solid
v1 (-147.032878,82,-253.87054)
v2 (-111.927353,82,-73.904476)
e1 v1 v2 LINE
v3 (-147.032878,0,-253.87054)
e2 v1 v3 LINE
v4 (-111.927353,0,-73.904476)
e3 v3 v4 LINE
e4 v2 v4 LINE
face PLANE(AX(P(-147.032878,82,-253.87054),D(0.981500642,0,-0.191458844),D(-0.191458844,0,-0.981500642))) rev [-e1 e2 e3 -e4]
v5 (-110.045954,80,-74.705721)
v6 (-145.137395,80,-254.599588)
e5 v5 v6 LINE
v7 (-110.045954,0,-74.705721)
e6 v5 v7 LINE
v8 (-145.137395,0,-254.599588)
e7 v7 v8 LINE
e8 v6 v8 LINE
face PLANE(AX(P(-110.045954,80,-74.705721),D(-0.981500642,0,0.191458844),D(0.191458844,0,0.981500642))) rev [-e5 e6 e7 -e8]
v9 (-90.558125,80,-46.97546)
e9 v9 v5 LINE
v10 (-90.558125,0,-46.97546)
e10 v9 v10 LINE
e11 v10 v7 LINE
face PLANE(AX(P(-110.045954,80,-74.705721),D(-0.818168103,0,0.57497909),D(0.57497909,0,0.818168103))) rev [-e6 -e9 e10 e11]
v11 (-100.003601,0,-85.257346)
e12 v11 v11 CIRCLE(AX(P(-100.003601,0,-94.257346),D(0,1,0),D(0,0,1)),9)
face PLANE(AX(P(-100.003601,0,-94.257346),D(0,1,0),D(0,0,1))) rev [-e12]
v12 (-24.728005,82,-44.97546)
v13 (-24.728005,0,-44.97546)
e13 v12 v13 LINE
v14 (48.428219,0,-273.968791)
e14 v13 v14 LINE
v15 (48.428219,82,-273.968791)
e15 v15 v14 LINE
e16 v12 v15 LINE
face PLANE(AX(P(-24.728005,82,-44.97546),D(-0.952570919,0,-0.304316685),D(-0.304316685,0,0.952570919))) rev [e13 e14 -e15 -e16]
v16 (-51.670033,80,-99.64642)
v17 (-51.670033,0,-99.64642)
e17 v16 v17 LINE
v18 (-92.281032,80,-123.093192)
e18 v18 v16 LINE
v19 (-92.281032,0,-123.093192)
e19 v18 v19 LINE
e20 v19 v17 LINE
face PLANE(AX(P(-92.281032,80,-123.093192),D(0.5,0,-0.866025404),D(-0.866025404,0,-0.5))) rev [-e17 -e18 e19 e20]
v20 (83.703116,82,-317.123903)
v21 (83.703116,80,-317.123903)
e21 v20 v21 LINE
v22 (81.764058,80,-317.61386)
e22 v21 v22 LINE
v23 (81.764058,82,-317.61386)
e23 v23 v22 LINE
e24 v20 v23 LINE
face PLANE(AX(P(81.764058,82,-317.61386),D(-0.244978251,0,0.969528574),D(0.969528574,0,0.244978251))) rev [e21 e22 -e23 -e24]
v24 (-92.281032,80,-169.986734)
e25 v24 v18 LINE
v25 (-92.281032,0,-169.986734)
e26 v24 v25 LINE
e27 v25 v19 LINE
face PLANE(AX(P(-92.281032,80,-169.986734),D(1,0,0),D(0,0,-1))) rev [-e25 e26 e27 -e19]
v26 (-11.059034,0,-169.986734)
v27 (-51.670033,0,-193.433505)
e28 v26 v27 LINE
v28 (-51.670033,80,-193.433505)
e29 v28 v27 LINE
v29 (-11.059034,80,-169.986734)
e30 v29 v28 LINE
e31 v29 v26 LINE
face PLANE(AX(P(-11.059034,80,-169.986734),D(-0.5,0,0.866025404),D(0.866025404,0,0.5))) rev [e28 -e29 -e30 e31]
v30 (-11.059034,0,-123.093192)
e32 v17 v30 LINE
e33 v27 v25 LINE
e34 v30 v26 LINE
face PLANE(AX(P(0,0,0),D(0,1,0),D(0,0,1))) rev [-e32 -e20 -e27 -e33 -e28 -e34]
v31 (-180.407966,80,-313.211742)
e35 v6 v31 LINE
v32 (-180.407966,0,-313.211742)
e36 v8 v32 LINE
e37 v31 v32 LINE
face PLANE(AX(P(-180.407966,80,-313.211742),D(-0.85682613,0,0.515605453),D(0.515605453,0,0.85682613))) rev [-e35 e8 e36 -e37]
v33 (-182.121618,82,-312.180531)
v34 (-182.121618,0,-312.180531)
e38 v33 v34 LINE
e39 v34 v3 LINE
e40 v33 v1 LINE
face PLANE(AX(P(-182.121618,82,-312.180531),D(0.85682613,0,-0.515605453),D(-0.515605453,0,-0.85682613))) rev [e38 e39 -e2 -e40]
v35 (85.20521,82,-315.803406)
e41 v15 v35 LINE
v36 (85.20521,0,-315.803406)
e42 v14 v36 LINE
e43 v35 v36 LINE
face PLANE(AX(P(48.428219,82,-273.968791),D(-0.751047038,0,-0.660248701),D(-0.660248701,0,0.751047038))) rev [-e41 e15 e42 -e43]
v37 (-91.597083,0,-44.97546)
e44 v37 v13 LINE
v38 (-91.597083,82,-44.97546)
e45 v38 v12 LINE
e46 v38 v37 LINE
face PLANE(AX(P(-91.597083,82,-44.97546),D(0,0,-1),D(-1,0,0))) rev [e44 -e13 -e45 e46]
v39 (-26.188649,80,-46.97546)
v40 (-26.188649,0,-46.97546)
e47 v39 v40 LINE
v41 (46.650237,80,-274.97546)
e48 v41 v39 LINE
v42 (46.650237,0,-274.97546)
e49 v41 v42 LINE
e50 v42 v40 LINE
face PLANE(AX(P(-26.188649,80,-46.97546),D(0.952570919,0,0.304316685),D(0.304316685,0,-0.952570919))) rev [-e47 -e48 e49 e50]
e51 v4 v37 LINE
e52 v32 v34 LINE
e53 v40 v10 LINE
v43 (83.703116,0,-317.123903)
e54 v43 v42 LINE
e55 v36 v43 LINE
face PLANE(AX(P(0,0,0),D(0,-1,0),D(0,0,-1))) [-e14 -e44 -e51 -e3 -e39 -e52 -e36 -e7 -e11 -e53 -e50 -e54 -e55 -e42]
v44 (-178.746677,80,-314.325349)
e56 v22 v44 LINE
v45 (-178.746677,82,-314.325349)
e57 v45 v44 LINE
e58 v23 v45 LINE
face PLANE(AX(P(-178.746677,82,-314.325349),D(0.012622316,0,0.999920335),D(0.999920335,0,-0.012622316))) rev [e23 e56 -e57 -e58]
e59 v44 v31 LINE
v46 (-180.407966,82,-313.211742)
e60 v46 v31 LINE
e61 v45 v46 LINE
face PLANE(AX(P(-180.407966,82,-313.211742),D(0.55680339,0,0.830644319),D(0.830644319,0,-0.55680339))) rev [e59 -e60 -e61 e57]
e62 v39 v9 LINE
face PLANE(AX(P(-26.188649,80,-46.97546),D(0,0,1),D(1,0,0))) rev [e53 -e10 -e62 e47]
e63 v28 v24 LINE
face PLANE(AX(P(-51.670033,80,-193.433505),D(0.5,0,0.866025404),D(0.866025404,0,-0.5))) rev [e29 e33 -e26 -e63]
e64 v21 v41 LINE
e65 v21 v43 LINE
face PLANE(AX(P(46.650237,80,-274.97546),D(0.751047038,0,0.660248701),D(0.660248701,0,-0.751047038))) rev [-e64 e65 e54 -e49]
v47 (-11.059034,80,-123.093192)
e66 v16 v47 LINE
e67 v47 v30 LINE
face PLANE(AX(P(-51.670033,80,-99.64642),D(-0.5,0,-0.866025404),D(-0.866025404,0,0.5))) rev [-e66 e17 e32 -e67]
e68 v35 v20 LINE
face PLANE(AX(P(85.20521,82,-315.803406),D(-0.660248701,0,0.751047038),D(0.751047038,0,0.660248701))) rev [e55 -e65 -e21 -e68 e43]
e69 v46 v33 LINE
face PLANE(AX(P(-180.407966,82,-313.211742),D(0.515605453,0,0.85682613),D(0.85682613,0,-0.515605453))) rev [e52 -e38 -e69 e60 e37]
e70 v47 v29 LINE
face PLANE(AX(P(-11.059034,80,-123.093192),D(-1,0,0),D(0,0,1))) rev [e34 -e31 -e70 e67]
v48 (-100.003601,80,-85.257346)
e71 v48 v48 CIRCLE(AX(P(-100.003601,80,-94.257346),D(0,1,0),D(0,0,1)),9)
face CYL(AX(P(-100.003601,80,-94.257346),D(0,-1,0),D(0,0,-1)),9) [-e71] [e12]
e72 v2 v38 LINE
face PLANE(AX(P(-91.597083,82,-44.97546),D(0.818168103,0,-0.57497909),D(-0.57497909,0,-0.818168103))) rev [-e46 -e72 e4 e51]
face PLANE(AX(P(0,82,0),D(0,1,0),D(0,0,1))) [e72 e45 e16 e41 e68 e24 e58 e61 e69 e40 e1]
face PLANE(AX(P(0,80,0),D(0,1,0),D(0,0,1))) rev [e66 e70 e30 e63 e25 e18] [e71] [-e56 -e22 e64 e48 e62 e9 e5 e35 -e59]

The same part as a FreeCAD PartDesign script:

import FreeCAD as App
import Part
import Sketcher
Q = App.Units.Quantity

doc = App.newDocument("Part")
body = doc.addObject("PartDesign::Body", "Body")

sketch1 = body.newObject("Sketcher::SketchObject", "Sketch")
sketch1.AttachmentSupport = (doc.getObject("XZ_Plane"), [""])
sketch1.MapMode = "FlatFace"
sketch1.addGeometry(Part.Circle(App.Vector(-100, -94, 0), App.Vector(0, 0, 1), 9), False)
sketch1.addConstraint([
    Sketcher.Constraint("Diameter", 0, 18.0),
    Sketcher.Constraint("DistanceX", 0, 3, -1, 1, 100.003601),
    Sketcher.Constraint("DistanceY", 0, 3, -1, 1, 94.257346),
])
pad1 = body.newObject("PartDesign::Pad", "Pad")
pad1.Profile = sketch1
pad1.Length = 80
pad1.Reversed = True
body2 = doc.addObject("PartDesign::Body", "Body001")

sketch2 = body2.newObject("Sketcher::SketchObject", "Sketch001")
sketch2.AttachmentSupport = (doc.getObject("XZ_Plane001"), [""])
sketch2.MapMode = "FlatFace"
sketch2.addGeometry([
    Part.LineSegment(App.Vector(-145.137395, -254.599588, 0), App.Vector(-180.407966, -313.211742, 0)),
    Part.LineSegment(App.Vector(-180.407966, -313.211742, 0), App.Vector(-182.121618, -312.180531, 0)),
    Part.LineSegment(App.Vector(-182.121618, -312.180531, 0), App.Vector(-147.032878, -253.87054, 0)),
    Part.LineSegment(App.Vector(-147.032878, -253.87054, 0), App.Vector(-111.927353, -73.904476, 0)),
    Part.LineSegment(App.Vector(-111.927353, -73.904476, 0), App.Vector(-91.597083, -44.97546, 0)),
    Part.LineSegment(App.Vector(-91.597083, -44.97546, 0), App.Vector(-24.728005, -44.97546, 0)),
    Part.LineSegment(App.Vector(-24.728005, -44.97546, 0), App.Vector(48.428219, -273.968791, 0)),
    Part.LineSegment(App.Vector(48.428219, -273.968791, 0), App.Vector(85.20521, -315.803406, 0)),
    Part.LineSegment(App.Vector(85.20521, -315.803406, 0), App.Vector(83.703116, -317.123903, 0)),
    Part.LineSegment(App.Vector(83.703116, -317.123903, 0), App.Vector(46.650237, -274.97546, 0)),
    Part.LineSegment(App.Vector(46.650237, -274.97546, 0), App.Vector(-26.188649, -46.97546, 0)),
    Part.LineSegment(App.Vector(-26.188649, -46.97546, 0), App.Vector(-90.558125, -46.97546, 0)),
    Part.LineSegment(App.Vector(-90.558125, -46.97546, 0), App.Vector(-110.045954, -74.705721, 0)),
    Part.LineSegment(App.Vector(-110.045954, -74.705721, 0), App.Vector(-145.137395, -254.599588, 0)),
], False)
sketch2.addConstraint([
    Sketcher.Constraint("Coincident", 0, 2, 1, 1),
    Sketcher.Constraint("Coincident", 1, 2, 2, 1),
    Sketcher.Constraint("Coincident", 2, 2, 3, 1),
    Sketcher.Constraint("Coincident", 3, 2, 4, 1),
    Sketcher.Constraint("Coincident", 4, 2, 5, 1),
    Sketcher.Constraint("Coincident", 5, 2, 6, 1),
    Sketcher.Constraint("Coincident", 6, 2, 7, 1),
    Sketcher.Constraint("Coincident", 7, 2, 8, 1),
    Sketcher.Constraint("Coincident", 8, 2, 9, 1),
    Sketcher.Constraint("Coincident", 9, 2, 10, 1),
    Sketcher.Constraint("Coincident", 10, 2, 11, 1),
    Sketcher.Constraint("Coincident", 11, 2, 12, 1),
    Sketcher.Constraint("Coincident", 12, 2, 13, 1),
    Sketcher.Constraint("Coincident", 13, 2, 0, 1),
    Sketcher.Constraint("Horizontal", 5),
    Sketcher.Constraint("Horizontal", 11),
    Sketcher.Constraint("Perpendicular", 0, 1),
    Sketcher.Constraint("Perpendicular", 1, 2),
    Sketcher.Constraint("Perpendicular", 7, 8),
    Sketcher.Constraint("Perpendicular", 8, 9),
    Sketcher.Constraint("Parallel", 6, 10),
    Sketcher.Constraint("Parallel", 4, 12),
    Sketcher.Constraint("Parallel", 3, 13),
    Sketcher.Constraint("Equal", 1, 8),
    Sketcher.Constraint("Distance", 1, 2.0),
    Sketcher.Constraint("DistanceY", 10, 2, 5, 2, 2.0),
    Sketcher.Constraint("DistanceY", 9, 2, 10, 2, 228.0),
    Sketcher.Constraint("DistanceX", 3, 2, 12, 2, 1.881399),
    Sketcher.Constraint("Distance", 2, 68.05347),
    Sketcher.Constraint("Distance", 3, 183.358071),
    Sketcher.Constraint("Distance", 4, 35.358279),
    Sketcher.Constraint("Distance", 9, 56.119579),
    Sketcher.Constraint("Distance", 12, 33.893109),
    Sketcher.Constraint("DistanceX", 5, 1, 5, 2, 66.869077),
    Sketcher.Constraint("DistanceX", 11, 2, 11, 1, 64.369476),
    Sketcher.Constraint("DistanceY", 1, 2, -1, 1, 312.180531),
    Sketcher.Constraint("DistanceY", 2, 2, -1, 1, 253.87054),
    Sketcher.Constraint("DistanceY", 4, 2, -1, 1, 44.97546),
    Sketcher.Constraint("DistanceX", -1, 1, 6, 2, 48.428219),
    Sketcher.Constraint("DistanceY", 6, 2, -1, 1, 273.968791),
    Sketcher.Constraint("DistanceX", -1, 1, 7, 2, 85.20521),
    Sketcher.Constraint("DistanceX", 10, 2, -1, 1, 26.188649),
])
pad2 = body2.newObject("PartDesign::Pad", "Pad001")
pad2.Profile = sketch2
pad2.Length = 80
pad2.Reversed = True
body3 = doc.addObject("PartDesign::Body", "Body002")

sketch3 = body3.newObject("Sketcher::SketchObject", "Sketch002")
sketch3.AttachmentSupport = (doc.getObject("XZ_Plane002"), [""])
sketch3.MapMode = "FlatFace"
sketch3.addGeometry([
    Part.LineSegment(App.Vector(-52, -193, 0), App.Vector(-92, -170, 0)),
    Part.LineSegment(App.Vector(-92, -170, 0), App.Vector(-92, -123, 0)),
    Part.LineSegment(App.Vector(-92, -123, 0), App.Vector(-52, -100, 0)),
    Part.LineSegment(App.Vector(-52, -100, 0), App.Vector(-11, -123, 0)),
    Part.LineSegment(App.Vector(-11, -123, 0), App.Vector(-11, -170, 0)),
    Part.LineSegment(App.Vector(-11, -170, 0), App.Vector(-52, -193, 0)),
], False)
sketch3.addConstraint([
    Sketcher.Constraint("Coincident", 0, 2, 1, 1),
    Sketcher.Constraint("Coincident", 1, 2, 2, 1),
    Sketcher.Constraint("Coincident", 2, 2, 3, 1),
    Sketcher.Constraint("Coincident", 3, 2, 4, 1),
    Sketcher.Constraint("Coincident", 4, 2, 5, 1),
    Sketcher.Constraint("Coincident", 5, 2, 0, 1),
    Sketcher.Constraint("Vertical", 1),
    Sketcher.Constraint("Vertical", 4),
    Sketcher.Constraint("Parallel", 0, 3),
    Sketcher.Constraint("Parallel", 2, 5),
    Sketcher.Constraint("Horizontal", 1, 2, 3, 2),
    Sketcher.Constraint("Horizontal", 0, 2, 4, 2),
    Sketcher.Constraint("Vertical", 2, 2, 5, 2),
    Sketcher.Constraint("Angle", 0, Q("150 deg")),
    Sketcher.Constraint("DistanceX", 1, 2, 2, 2, 40.610999),
    Sketcher.Constraint("DistanceY", 1, 1, 1, 2, 46.893542),
    Sketcher.Constraint("DistanceX", 0, 2, -1, 1, 92.281032),
    Sketcher.Constraint("DistanceY", 1, 2, -1, 1, 123.093192),
])
pad3 = body3.newObject("PartDesign::Pad", "Pad002")
pad3.Profile = sketch3
pad3.Length = 80
pad3.Reversed = True
body.AllowCompound = True
doc.recompute()

boolean = body.newObject("PartDesign::Boolean", "Boolean")
boolean.Type = "Fuse"
boolean.addObjects([body2])
doc.recompute()

boolean2 = body.newObject("PartDesign::Boolean", "Boolean001")
boolean2.Type = "Fuse"
boolean2.addObjects([body3])

sketch4 = body.newObject("Sketcher::SketchObject", "Sketch003")
sketch4.AttachmentSupport = (doc.getObject("XZ_Plane"), [""])
sketch4.MapMode = "FlatFace"
sketch4.AttachmentOffset = App.Placement(App.Vector(0, 0, -80), App.Rotation())
sketch4.addGeometry([
    Part.LineSegment(App.Vector(81.8, -317.6, 0), App.Vector(-178.7, -314.3, 0)),
    Part.LineSegment(App.Vector(-178.7, -314.3, 0), App.Vector(-180.4, -313.2, 0)),
    Part.LineSegment(App.Vector(-180.4, -313.2, 0), App.Vector(-182.1, -312.2, 0)),
    Part.LineSegment(App.Vector(-182.1, -312.2, 0), App.Vector(-147, -253.9, 0)),
    Part.LineSegment(App.Vector(-147, -253.9, 0), App.Vector(-111.9, -73.9, 0)),
    Part.LineSegment(App.Vector(-111.9, -73.9, 0), App.Vector(-91.6, -45, 0)),
    Part.LineSegment(App.Vector(-91.6, -45, 0), App.Vector(-24.7, -45, 0)),
    Part.LineSegment(App.Vector(-24.7, -45, 0), App.Vector(48.4, -274, 0)),
    Part.LineSegment(App.Vector(48.4, -274, 0), App.Vector(85.2, -315.8, 0)),
    Part.LineSegment(App.Vector(85.2, -315.8, 0), App.Vector(83.7, -317.1, 0)),
    Part.LineSegment(App.Vector(83.7, -317.1, 0), App.Vector(81.8, -317.6, 0)),
], False)
sketch4.addConstraint([
    Sketcher.Constraint("Coincident", 0, 2, 1, 1),
    Sketcher.Constraint("Coincident", 1, 2, 2, 1),
    Sketcher.Constraint("Coincident", 2, 2, 3, 1),
    Sketcher.Constraint("Coincident", 3, 2, 4, 1),
    Sketcher.Constraint("Coincident", 4, 2, 5, 1),
    Sketcher.Constraint("Coincident", 5, 2, 6, 1),
    Sketcher.Constraint("Coincident", 6, 2, 7, 1),
    Sketcher.Constraint("Coincident", 7, 2, 8, 1),
    Sketcher.Constraint("Coincident", 8, 2, 9, 1),
    Sketcher.Constraint("Coincident", 9, 2, 10, 1),
    Sketcher.Constraint("Coincident", 10, 2, 0, 1),
    Sketcher.Constraint("Horizontal", 6),
    Sketcher.Constraint("Perpendicular", 2, 3),
    Sketcher.Constraint("Perpendicular", 8, 9),
    Sketcher.Constraint("Equal", 1, 2),
    Sketcher.Constraint("Equal", 2, 9),
    Sketcher.Constraint("Equal", 9, 10),
    Sketcher.Constraint("Distance", 1, 2.0),
    Sketcher.Constraint("DistanceX", 0, 2, 3, 2, 31.713799),
    Sketcher.Constraint("Distance", 0, 260.531491),
    Sketcher.Constraint("Distance", 3, 68.05347),
    Sketcher.Constraint("Distance", 4, 183.358071),
    Sketcher.Constraint("Distance", 5, 35.358279),
    Sketcher.Constraint("DistanceX", 6, 1, 6, 2, 66.869077),
    Sketcher.Constraint("DistanceY", 0, 2, -1, 1, 314.325349),
    Sketcher.Constraint("DistanceY", 2, 2, -1, 1, 312.180531),
    Sketcher.Constraint("DistanceY", 5, 2, -1, 1, 44.97546),
    Sketcher.Constraint("DistanceX", -1, 1, 7, 2, 48.428219),
    Sketcher.Constraint("DistanceY", 7, 2, -1, 1, 273.968791),
    Sketcher.Constraint("DistanceX", -1, 1, 8, 2, 85.20521),
    Sketcher.Constraint("DistanceX", -1, 1, 10, 2, 81.764058),
    Sketcher.Constraint("DistanceY", 10, 2, -1, 1, 317.61386),
    Sketcher.Constraint("DistanceX", 4, 2, 5, 2, 20.330271),
])
pad4 = body.newObject("PartDesign::Pad", "Pad003")
pad4.Profile = sketch4
pad4.Length = 2
pad4.Reversed = True

doc.recompute()
